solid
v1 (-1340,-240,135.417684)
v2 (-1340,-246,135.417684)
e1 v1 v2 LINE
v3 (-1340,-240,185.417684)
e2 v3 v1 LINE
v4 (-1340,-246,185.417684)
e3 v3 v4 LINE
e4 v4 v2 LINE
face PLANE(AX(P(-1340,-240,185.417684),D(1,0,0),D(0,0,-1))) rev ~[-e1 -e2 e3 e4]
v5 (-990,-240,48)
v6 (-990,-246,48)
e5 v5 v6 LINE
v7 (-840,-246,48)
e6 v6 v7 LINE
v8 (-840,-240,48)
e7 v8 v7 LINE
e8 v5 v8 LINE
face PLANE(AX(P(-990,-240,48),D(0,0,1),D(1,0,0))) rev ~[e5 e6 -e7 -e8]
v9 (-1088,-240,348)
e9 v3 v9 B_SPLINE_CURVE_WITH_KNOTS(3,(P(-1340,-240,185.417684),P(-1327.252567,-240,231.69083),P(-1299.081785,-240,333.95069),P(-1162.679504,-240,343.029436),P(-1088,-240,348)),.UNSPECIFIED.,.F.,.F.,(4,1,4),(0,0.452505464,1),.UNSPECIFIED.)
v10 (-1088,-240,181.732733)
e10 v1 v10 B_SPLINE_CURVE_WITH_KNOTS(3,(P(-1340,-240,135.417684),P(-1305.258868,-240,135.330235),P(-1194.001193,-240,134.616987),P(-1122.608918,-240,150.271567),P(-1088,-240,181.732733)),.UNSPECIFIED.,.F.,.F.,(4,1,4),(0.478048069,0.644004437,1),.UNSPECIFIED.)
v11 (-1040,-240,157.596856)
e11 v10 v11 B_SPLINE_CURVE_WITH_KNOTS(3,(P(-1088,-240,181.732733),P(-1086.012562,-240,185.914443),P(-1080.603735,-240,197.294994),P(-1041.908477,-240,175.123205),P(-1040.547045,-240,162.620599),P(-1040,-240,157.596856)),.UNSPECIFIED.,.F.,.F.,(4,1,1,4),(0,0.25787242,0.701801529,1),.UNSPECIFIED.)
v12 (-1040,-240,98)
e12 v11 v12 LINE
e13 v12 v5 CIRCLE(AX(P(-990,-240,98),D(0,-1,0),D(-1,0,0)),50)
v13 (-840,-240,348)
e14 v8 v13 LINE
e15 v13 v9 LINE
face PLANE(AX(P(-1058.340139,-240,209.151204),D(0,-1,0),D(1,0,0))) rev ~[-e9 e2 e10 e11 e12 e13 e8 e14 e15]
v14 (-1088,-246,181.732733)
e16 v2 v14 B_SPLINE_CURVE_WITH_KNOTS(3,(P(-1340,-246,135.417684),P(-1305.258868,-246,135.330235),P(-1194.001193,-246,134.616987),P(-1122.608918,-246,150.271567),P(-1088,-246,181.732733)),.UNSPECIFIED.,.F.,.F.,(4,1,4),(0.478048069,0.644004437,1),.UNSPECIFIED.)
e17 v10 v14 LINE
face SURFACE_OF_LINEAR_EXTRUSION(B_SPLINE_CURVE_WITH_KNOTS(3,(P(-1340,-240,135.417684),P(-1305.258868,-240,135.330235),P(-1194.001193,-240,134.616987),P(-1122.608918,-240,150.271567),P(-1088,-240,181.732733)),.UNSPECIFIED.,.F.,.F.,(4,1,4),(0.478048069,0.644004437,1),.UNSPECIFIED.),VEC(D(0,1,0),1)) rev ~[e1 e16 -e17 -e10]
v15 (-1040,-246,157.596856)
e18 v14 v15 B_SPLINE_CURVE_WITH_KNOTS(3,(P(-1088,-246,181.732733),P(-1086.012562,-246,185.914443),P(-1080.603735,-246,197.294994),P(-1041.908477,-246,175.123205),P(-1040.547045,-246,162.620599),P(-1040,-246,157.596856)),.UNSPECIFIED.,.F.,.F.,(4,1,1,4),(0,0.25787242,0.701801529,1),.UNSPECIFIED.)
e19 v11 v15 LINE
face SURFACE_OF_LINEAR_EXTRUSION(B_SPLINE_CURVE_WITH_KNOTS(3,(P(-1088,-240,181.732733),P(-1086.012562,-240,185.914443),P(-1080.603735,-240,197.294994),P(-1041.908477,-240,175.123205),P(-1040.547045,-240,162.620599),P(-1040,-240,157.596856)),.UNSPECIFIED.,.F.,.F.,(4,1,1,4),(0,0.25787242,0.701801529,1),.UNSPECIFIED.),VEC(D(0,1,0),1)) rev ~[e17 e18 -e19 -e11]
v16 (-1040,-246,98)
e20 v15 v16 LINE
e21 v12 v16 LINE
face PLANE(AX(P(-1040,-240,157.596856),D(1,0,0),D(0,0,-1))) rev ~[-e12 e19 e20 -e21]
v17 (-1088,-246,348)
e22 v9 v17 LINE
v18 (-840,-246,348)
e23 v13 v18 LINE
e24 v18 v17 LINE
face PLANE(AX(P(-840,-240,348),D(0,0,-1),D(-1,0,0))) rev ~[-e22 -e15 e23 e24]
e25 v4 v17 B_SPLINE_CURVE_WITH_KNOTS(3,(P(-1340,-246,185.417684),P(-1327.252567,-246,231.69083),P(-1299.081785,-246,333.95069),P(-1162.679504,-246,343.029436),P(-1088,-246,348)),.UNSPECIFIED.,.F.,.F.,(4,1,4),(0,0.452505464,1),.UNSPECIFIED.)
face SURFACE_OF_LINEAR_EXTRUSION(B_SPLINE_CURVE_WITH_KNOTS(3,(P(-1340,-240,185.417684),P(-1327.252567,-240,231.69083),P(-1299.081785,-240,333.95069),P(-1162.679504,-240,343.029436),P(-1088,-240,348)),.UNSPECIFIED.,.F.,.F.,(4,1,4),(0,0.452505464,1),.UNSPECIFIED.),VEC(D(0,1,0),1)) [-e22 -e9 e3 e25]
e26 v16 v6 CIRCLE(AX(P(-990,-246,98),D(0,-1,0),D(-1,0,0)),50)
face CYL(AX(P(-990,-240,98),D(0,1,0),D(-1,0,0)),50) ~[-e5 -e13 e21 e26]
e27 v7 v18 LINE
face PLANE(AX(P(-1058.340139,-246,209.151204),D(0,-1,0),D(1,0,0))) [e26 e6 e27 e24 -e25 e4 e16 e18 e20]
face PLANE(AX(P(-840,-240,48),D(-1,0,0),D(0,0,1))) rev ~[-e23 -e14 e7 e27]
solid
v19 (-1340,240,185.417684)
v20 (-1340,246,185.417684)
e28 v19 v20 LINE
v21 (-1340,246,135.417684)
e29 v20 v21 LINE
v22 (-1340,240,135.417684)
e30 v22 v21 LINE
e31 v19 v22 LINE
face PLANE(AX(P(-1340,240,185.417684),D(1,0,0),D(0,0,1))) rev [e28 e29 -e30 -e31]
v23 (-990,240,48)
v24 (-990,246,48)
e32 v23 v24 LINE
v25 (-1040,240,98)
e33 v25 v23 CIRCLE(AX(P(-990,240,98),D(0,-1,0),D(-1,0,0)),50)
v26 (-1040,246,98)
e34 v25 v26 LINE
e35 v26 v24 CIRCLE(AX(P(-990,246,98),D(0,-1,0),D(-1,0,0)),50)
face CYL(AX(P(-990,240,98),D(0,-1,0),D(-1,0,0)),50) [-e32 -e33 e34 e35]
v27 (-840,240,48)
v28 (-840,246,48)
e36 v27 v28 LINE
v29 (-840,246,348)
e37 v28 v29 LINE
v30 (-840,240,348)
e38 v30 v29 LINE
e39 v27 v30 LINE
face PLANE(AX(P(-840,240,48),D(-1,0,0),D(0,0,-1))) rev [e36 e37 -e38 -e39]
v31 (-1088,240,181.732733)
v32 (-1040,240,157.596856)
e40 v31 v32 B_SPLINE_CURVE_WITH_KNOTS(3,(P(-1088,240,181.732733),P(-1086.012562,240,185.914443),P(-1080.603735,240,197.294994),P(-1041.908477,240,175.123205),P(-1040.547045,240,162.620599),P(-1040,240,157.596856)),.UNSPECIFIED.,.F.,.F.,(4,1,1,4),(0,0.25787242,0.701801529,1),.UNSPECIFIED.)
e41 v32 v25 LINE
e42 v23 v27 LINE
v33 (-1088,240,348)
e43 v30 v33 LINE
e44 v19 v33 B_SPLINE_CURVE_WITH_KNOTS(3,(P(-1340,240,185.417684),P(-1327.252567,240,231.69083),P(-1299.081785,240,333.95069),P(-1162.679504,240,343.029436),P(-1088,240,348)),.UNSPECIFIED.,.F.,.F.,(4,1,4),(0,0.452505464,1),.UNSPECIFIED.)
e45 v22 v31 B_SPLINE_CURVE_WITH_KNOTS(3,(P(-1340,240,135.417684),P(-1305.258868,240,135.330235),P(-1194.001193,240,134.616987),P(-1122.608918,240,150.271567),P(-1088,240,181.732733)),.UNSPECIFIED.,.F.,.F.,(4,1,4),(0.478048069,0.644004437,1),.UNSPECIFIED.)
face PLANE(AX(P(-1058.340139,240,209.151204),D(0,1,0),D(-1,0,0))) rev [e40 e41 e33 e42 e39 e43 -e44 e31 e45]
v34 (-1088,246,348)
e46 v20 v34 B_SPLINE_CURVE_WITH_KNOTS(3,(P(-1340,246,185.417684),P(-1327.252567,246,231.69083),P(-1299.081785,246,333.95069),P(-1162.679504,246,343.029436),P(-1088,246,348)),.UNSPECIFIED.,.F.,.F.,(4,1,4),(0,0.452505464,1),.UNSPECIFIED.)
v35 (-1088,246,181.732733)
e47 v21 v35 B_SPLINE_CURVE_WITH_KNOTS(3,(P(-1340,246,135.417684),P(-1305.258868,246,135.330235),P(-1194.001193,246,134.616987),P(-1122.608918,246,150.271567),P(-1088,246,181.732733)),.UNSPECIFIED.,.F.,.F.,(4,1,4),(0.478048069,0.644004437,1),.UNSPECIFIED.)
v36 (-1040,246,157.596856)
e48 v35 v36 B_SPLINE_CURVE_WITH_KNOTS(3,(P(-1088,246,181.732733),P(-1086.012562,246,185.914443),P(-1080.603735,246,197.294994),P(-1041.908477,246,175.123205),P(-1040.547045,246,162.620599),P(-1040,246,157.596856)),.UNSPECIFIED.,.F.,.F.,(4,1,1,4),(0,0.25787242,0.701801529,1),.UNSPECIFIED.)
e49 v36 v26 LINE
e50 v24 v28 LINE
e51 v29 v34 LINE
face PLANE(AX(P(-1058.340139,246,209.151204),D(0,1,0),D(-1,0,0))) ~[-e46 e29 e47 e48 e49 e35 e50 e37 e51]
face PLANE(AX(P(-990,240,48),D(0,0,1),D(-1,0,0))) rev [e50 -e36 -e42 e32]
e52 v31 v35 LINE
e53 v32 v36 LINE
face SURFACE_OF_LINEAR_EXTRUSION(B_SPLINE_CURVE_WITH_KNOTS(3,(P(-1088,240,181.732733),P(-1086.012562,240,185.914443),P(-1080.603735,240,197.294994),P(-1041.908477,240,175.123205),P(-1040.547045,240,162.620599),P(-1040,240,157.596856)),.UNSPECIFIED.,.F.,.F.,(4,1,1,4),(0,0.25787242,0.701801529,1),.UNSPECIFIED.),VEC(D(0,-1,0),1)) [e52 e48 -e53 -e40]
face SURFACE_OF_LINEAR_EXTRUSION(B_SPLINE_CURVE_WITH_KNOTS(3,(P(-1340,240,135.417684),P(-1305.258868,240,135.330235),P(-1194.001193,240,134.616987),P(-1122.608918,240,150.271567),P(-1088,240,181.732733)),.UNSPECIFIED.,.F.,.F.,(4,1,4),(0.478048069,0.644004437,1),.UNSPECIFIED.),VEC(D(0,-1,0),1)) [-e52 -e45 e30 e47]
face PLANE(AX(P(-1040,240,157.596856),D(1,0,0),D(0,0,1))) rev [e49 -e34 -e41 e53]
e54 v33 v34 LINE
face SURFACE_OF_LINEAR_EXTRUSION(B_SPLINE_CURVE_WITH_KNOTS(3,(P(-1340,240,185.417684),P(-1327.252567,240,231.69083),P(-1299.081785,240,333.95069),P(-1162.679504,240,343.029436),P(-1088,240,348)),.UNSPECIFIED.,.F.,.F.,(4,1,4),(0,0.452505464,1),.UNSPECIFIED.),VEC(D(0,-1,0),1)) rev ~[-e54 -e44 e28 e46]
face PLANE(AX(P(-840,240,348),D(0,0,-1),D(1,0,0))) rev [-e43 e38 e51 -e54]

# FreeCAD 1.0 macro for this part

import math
import FreeCAD as App
import Part
import Sketcher

V = App.Vector
Q = App.Units.Quantity

doc = App.newDocument("Part")
body = doc.addObject("PartDesign::Body", "Body")

# Sketch on XZ plane
sketch1 = body.newObject("Sketcher::SketchObject", "Sketch")
sketch1.AttachmentSupport = (doc.getObject("XZ_Plane"), [""])
sketch1.MapMode = "FlatFace"
sketch1.AttachmentOffset = App.Placement(V(0, 0, 240), App.Rotation())
sketch1.addGeometry([
    Part.LineSegment(V(-1340, 185.417684, 0), V(-1340, 135.417684, 0)),  # 0
    Part.BSplineCurve([V(-1340, 135.417684, 0), V(-1305.258868, 135.330235, 0), V(-1194.001193, 134.616987, 0), V(-1122.608918, 150.271567, 0), V(-1088, 181.732733, 0)], [4, 1, 4], [0.478048069, 0.644004437, 1], False, 3, [1, 1, 1, 1, 1], False),  # 1
    Part.BSplineCurve([V(-1088, 181.732733, 0), V(-1086.012562, 185.914443, 0), V(-1080.603735, 197.294994, 0), V(-1041.908477, 175.123205, 0), V(-1040.547045, 162.620599, 0), V(-1040, 157.596856, 0)], [4, 1, 1, 4], [0, 0.25787242, 0.701801529, 1], False, 3, [1, 1, 1, 1, 1, 1], False),  # 2
    Part.LineSegment(V(-1040, 157.596856, 0), V(-1040, 98, 0)),  # 3
    Part.ArcOfCircle(Part.Circle(V(-990, 98, 0), V(0, 0, 1), 50), math.radians(180), math.radians(270)),  # 4
    Part.LineSegment(V(-990, 48, 0), V(-840, 48, 0)),  # 5
    Part.LineSegment(V(-840, 48, 0), V(-840, 348, 0)),  # 6
    Part.LineSegment(V(-840, 348, 0), V(-1088, 348, 0)),  # 7
    Part.BSplineCurve([V(-1340, 185.417684, 0), V(-1327.252567, 231.69083, 0), V(-1299.081785, 333.95069, 0), V(-1162.679504, 343.029436, 0), V(-1088, 348, 0)], [4, 1, 4], [0, 0.452505464, 1], False, 3, [1, 1, 1, 1, 1], False),  # 8
], False)
sketch1.addConstraint([
    Sketcher.Constraint("Block", 1),
    Sketcher.Constraint("Block", 2),
    Sketcher.Constraint("Block", 8),
    Sketcher.Constraint("Coincident", 0, 2, 1, 1),
    Sketcher.Constraint("Coincident", 2, 2, 3, 1),
    Sketcher.Constraint("Tangent", 3, 2, 4, 1),
    Sketcher.Constraint("Tangent", 4, 2, 5, 1),
    Sketcher.Constraint("Coincident", 5, 2, 6, 1),
    Sketcher.Constraint("Coincident", 6, 2, 7, 1),
    Sketcher.Constraint("Coincident", 7, 2, 8, 2),
    Sketcher.Constraint("Coincident", 8, 1, 0, 1),
    Sketcher.Constraint("Vertical", 3),
    Sketcher.Constraint("Horizontal", 5),
    Sketcher.Constraint("Vertical", 6),
    Sketcher.Constraint("Horizontal", 7),
    Sketcher.Constraint("Radius", 4, Q("50 mm")),
    Sketcher.Constraint("DistanceX", 5, 1, 5, 2, Q("150 mm")),
    Sketcher.Constraint("DistanceY", 6, 1, 6, 2, Q("300 mm")),
])
pad1 = body.newObject("PartDesign::Pad", "Pad")
pad1.Profile = sketch1
pad1.Length = 6
body2 = doc.addObject("PartDesign::Body", "Body001")
doc.recompute()

mirroring = doc.addObject("Part::Mirroring", "Mirroring")
mirroring.Source = body
mirroring.Base = V(0, 0, 0)
mirroring.Normal = V(0, -1, 0)
body2.BaseFeature = mirroring
doc.recompute()
mirroring.Visibility = False

doc.recompute()
